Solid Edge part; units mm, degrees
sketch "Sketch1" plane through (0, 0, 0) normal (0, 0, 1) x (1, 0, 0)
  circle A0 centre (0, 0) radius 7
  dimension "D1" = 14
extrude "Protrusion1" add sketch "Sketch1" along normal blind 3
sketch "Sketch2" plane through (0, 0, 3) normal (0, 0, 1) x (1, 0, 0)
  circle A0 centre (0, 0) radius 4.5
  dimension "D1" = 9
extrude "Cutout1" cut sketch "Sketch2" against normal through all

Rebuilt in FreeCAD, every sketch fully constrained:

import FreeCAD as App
import Part
import Sketcher
from FreeCAD import Vector
Q = App.Units.Quantity

doc = App.newDocument("Part")
body = doc.addObject("PartDesign::Body", "Body")

sketch1 = body.newObject("Sketcher::SketchObject", "Sketch")
sketch1.AttachmentSupport = (doc.getObject("XY_Plane"), [""])
sketch1.MapMode = "FlatFace"
sketch1.addGeometry(Part.Circle(Vector(0, 0, 0), Vector(0, 0, 1), 7), False)
sketch1.addConstraint([
    Sketcher.Constraint("Coincident", 0, 3, -1, 1),
    Sketcher.Constraint("Diameter", 0, Q("14 mm")),
])
pad1 = body.newObject("PartDesign::Pad", "Pad")
pad1.Profile = sketch1
pad1.Length = 3

sketch2 = body.newObject("Sketcher::SketchObject", "Sketch001")
sketch2.AttachmentSupport = (doc.getObject("XY_Plane"), [""])
sketch2.MapMode = "FlatFace"
sketch2.AttachmentOffset = App.Placement(Vector(0, 0, 3), App.Rotation())
sketch2.addGeometry(Part.Circle(Vector(0, 0, 0), Vector(0, 0, 1), 4.5), False)
sketch2.addConstraint([
    Sketcher.Constraint("Coincident", 0, 3, -1, 1),
    Sketcher.Constraint("Diameter", 0, Q("9 mm")),
])
pocket1 = body.newObject("PartDesign::Pocket", "Pocket")
pocket1.Profile = sketch2
pocket1.Type = "ThroughAll"

doc.recompute()
